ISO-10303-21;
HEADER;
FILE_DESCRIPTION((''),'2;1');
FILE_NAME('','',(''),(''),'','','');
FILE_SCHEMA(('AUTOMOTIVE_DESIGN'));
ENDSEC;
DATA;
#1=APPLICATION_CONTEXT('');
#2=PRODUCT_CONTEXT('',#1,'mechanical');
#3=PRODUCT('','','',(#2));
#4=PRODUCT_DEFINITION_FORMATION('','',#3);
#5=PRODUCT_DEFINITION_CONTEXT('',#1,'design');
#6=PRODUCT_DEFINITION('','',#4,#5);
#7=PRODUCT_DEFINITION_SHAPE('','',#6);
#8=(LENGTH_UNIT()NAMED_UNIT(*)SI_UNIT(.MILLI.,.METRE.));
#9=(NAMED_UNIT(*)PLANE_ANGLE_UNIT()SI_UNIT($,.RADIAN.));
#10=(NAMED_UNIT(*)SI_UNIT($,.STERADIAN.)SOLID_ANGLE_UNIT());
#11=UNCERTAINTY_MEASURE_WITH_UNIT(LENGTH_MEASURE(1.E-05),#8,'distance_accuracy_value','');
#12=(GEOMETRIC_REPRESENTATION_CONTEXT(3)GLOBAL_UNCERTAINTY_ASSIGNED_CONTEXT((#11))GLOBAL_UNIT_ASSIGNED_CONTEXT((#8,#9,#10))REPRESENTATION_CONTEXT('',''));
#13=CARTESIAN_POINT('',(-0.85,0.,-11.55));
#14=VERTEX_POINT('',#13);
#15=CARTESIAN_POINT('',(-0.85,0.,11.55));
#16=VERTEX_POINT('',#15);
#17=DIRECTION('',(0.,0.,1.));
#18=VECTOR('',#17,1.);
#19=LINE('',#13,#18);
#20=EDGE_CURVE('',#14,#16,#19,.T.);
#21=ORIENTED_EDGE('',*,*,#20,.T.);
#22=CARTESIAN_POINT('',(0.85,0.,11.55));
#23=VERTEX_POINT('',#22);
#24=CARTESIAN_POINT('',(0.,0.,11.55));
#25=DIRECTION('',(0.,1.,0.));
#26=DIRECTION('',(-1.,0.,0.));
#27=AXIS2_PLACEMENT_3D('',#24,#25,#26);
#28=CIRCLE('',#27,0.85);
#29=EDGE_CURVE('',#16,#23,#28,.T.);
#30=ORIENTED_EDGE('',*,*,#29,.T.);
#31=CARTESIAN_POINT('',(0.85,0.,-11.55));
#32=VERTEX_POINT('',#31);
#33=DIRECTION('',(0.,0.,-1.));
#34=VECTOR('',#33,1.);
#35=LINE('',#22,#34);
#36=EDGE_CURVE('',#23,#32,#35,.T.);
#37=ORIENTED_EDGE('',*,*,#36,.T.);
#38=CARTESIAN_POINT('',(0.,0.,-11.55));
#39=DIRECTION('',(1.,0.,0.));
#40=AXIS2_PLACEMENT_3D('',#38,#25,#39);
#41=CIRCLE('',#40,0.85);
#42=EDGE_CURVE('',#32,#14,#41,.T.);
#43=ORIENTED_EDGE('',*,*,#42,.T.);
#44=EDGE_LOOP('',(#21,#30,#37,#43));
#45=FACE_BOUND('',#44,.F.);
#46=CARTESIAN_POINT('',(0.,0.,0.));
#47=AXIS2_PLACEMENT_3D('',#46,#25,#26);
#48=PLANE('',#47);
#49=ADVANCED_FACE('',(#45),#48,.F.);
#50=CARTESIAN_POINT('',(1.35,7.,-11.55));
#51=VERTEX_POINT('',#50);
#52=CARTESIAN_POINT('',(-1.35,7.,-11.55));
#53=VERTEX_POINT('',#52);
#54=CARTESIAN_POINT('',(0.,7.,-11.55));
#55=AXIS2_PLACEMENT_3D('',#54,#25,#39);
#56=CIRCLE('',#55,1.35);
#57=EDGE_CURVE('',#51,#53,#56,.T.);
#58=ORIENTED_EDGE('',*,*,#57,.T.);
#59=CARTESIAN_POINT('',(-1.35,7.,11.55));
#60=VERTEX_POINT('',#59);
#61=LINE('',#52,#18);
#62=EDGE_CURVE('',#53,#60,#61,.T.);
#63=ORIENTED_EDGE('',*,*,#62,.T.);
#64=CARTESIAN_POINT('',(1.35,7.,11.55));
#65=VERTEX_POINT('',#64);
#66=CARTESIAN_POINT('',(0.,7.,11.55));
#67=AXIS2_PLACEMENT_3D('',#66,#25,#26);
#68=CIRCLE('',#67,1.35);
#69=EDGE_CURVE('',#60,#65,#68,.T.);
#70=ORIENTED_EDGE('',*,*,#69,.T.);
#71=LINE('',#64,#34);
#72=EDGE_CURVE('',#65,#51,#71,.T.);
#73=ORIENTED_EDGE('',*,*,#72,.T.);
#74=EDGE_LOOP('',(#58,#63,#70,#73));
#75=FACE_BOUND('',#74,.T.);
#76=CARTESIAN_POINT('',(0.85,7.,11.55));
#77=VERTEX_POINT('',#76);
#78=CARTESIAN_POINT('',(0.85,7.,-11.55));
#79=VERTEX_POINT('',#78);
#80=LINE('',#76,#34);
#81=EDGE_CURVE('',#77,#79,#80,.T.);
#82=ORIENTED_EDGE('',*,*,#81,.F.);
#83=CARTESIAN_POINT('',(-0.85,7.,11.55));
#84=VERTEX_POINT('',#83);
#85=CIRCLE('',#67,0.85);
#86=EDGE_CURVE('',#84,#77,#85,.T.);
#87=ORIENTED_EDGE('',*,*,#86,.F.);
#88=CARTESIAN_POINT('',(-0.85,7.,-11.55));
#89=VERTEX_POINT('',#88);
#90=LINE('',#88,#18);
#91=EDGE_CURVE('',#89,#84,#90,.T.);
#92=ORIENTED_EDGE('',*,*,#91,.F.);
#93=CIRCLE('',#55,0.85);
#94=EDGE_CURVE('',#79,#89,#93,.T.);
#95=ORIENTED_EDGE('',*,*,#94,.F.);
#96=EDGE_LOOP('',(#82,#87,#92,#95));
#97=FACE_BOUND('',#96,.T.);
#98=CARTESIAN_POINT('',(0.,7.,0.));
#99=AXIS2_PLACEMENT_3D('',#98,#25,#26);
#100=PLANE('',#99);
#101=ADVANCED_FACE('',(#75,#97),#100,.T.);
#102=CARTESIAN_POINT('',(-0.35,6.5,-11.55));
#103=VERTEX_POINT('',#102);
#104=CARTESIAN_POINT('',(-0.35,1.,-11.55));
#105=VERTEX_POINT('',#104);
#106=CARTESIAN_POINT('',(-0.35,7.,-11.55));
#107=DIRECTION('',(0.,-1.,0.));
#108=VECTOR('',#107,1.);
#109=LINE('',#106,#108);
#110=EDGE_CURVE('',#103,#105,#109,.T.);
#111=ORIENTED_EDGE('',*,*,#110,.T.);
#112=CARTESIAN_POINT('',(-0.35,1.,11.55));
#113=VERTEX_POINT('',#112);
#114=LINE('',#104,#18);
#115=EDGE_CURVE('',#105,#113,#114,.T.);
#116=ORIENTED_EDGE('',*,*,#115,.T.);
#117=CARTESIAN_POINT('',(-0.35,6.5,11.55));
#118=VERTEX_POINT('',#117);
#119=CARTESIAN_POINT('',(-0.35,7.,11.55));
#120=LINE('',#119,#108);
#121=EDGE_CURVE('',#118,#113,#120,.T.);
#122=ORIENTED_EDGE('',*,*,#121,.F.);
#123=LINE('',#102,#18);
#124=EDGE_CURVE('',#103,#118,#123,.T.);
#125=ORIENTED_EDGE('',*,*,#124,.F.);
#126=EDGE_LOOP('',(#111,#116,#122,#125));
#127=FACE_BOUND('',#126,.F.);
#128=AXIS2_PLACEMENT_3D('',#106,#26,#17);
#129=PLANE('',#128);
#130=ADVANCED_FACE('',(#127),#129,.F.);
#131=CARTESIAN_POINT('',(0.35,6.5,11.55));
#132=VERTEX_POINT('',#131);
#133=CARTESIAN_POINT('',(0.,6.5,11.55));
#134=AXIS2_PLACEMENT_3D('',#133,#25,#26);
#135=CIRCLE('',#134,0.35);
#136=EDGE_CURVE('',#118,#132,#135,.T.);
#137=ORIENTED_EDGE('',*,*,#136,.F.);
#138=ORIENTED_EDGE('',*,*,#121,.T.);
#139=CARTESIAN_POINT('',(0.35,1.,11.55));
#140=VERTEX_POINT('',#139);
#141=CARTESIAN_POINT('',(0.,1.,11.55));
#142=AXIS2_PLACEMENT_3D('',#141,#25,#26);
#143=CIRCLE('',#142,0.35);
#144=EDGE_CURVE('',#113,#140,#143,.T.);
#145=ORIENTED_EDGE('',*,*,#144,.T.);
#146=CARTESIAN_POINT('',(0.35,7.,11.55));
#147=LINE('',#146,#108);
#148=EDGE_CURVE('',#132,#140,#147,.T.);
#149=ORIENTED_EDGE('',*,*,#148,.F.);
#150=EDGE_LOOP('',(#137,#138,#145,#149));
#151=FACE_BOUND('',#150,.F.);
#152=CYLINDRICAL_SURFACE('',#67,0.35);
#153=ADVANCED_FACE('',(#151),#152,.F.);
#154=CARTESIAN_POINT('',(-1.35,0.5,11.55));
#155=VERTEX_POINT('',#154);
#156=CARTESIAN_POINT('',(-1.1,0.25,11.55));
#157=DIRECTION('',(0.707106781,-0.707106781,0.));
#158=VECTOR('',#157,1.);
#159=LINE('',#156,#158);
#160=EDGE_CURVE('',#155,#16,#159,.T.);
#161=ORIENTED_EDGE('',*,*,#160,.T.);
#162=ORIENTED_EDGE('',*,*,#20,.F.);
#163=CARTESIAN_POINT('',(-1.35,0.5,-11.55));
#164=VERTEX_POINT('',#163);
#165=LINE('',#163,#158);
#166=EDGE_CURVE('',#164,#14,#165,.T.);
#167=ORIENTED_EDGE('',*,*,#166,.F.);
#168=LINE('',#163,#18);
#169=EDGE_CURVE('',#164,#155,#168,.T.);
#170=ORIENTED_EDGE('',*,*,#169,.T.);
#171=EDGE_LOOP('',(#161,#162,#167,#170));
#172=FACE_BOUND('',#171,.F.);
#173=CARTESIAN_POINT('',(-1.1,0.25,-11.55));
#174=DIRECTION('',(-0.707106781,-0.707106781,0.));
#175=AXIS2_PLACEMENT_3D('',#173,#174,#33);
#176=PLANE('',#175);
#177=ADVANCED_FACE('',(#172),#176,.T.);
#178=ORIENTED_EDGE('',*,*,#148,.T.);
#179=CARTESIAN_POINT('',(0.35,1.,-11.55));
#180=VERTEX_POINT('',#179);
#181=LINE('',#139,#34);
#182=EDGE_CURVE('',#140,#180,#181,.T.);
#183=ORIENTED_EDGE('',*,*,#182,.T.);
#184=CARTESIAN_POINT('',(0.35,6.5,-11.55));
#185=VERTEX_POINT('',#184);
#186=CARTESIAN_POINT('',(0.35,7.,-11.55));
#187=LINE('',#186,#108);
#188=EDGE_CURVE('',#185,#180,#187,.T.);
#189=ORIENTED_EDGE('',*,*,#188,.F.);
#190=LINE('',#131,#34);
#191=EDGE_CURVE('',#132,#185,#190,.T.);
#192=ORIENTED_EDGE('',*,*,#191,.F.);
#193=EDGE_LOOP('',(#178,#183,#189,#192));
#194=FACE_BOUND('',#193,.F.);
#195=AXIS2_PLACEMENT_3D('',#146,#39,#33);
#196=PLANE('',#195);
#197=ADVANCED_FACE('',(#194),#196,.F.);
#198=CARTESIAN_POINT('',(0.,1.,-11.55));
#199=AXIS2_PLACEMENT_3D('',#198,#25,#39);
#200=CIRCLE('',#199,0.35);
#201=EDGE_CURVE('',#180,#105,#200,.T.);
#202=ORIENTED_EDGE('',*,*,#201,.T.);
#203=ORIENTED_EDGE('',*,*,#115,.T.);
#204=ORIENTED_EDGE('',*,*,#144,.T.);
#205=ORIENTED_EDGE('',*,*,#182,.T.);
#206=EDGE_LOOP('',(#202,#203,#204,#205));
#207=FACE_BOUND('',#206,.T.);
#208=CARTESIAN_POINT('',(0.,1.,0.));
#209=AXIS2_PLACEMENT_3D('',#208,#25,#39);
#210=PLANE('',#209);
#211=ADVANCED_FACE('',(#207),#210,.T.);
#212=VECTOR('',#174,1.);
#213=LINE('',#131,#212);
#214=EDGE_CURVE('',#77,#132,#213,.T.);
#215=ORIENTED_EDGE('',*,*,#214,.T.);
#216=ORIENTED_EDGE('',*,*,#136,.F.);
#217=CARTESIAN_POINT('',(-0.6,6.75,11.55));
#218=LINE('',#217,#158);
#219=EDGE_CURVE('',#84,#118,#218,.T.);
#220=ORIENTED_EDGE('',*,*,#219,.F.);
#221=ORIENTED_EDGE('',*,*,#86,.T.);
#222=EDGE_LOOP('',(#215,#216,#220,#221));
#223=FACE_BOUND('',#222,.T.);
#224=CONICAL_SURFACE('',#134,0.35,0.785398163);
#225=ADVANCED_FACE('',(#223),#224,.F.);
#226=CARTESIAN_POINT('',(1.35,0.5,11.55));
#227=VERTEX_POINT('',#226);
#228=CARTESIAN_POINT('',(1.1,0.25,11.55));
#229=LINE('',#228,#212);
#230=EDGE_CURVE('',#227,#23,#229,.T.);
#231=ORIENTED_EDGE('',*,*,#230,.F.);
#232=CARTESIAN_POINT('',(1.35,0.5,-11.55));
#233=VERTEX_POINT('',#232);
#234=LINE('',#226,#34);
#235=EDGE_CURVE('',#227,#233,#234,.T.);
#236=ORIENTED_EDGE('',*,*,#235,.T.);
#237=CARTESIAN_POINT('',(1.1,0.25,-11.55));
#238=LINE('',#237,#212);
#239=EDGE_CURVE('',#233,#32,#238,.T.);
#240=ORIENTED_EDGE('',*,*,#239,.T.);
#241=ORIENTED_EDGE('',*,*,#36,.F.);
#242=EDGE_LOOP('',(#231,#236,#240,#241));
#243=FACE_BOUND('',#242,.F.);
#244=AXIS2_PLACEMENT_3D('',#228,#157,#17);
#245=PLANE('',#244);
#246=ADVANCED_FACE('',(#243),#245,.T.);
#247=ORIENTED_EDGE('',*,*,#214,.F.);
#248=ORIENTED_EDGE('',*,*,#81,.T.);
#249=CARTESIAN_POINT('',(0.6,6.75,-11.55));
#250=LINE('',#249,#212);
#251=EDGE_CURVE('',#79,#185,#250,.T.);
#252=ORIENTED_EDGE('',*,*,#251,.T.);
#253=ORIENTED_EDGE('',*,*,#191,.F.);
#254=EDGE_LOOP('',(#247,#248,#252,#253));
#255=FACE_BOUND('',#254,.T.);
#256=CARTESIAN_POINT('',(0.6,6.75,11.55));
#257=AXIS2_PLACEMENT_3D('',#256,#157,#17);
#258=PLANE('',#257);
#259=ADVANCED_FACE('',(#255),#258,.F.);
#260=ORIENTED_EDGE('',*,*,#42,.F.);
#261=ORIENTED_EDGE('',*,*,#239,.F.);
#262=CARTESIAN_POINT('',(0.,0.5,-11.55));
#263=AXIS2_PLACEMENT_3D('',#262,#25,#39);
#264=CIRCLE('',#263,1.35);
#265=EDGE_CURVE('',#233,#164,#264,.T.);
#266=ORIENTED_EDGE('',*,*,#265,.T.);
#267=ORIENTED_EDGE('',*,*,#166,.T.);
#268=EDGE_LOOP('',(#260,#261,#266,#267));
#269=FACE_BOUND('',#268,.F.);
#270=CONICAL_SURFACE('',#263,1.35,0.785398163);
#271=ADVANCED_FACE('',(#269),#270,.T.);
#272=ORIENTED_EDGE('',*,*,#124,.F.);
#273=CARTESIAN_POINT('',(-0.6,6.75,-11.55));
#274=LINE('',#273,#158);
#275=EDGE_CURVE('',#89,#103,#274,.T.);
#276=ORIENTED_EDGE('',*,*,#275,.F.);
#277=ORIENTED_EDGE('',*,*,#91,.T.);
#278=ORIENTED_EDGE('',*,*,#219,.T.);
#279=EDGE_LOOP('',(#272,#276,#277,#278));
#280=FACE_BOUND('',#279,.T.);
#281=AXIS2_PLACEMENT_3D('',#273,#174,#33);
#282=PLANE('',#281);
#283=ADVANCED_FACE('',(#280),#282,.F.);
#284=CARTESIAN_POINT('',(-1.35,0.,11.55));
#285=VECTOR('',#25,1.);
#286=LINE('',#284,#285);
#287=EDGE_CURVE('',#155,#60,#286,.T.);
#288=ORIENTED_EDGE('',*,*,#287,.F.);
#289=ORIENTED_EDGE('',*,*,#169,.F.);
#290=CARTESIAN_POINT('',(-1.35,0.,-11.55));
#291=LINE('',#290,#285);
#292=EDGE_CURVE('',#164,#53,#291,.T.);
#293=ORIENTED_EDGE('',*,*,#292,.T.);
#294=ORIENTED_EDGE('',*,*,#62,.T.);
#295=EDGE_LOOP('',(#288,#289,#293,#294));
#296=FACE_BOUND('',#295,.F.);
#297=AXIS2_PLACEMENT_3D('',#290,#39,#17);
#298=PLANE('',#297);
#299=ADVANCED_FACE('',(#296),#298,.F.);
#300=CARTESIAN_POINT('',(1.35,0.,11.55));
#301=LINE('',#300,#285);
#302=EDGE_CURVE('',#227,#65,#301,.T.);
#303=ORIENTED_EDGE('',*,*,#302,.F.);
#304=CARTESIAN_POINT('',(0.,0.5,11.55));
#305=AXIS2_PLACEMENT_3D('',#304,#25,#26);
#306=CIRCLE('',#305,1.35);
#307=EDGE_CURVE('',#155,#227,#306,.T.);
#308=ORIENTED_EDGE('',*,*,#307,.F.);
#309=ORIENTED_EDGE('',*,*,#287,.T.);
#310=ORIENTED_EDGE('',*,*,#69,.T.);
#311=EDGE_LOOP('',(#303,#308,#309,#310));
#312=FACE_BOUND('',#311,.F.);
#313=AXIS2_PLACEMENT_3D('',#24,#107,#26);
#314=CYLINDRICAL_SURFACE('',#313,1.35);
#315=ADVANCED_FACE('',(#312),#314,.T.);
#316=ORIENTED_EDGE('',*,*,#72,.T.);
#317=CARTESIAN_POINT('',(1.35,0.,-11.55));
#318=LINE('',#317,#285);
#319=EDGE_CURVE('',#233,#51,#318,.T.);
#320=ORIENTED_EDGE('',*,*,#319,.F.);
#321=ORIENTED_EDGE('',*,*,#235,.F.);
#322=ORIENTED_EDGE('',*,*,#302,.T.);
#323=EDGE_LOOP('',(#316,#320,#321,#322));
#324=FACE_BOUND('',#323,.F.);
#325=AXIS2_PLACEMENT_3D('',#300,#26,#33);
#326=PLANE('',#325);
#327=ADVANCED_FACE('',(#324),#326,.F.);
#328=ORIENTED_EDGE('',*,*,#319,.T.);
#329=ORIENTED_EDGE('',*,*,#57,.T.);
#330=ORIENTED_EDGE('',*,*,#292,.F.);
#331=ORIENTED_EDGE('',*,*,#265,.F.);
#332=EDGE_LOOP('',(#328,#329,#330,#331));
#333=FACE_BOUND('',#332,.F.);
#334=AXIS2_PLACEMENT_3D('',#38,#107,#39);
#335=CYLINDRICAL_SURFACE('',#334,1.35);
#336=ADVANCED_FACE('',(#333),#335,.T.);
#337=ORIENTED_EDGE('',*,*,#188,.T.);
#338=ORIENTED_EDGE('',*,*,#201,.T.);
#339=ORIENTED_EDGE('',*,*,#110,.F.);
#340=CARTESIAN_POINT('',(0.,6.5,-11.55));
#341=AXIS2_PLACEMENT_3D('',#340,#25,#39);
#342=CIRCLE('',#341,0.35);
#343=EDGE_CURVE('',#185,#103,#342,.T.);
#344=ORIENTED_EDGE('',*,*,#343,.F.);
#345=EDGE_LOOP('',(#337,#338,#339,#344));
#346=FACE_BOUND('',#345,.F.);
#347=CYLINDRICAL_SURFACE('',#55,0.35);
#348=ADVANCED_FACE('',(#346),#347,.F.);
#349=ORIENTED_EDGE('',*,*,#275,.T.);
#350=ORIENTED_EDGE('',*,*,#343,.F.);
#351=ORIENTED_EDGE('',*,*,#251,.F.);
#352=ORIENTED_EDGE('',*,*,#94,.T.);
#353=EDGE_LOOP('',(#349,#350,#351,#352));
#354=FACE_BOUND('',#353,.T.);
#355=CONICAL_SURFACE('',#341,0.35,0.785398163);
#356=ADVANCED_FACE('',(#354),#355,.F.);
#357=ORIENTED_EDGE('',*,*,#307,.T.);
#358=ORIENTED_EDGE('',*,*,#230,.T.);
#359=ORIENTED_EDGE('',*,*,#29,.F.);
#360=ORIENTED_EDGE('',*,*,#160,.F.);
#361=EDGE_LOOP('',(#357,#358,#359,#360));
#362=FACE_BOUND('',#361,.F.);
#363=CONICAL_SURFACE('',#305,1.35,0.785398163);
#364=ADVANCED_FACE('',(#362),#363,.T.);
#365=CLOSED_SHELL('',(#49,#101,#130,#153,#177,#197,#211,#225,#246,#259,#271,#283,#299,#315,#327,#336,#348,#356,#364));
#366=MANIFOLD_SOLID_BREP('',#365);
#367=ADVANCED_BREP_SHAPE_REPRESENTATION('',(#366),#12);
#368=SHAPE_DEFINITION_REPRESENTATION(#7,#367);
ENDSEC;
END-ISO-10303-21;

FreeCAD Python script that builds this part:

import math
import FreeCAD as App
import Part
import Sketcher
from FreeCAD import Vector
Q = App.Units.Quantity


def edges_at(feature, points):
    """Names of the edges that pass closest to the given points."""
    edges = feature.Shape.Edges
    near = lambda p: min(range(len(edges)), key=lambda i: edges[i].distToShape(Part.Vertex(*p))[0])
    return sorted({f"Edge{near(p) + 1}" for p in points})

doc = App.newDocument("Part")
params = doc.addObject("Spreadsheet::Sheet", "Params")
for row, (alias, value) in enumerate([
    ("sketch1_radius", "1.35 mm"),
    ("sketch1_height", "23.1 mm"),
    ("pad1_length", "7 mm"),
    ("sketch2_radius", "0.35 mm"),
    ("sketch2_height", "23.1 mm"),
    ("pocket1_length", "6 mm"),
    ("chamfer_size", "0.5 mm"),
    ("chamfer2_size", "0.5 mm"),
], start=1):
    params.set(f"A{row}", alias)
    params.set(f"B{row}", "=" + value)
    params.setAlias(f"B{row}", alias)

body = doc.addObject("PartDesign::Body", "Body")

sketch1 = body.newObject("Sketcher::SketchObject", "Sketch")
sketch1.AttachmentSupport = (doc.getObject("XZ_Plane"), [""])
sketch1.MapMode = "FlatFace"
sketch1.addGeometry([
    Part.ArcOfCircle(Part.Circle(Vector(0, 11.6, 0), Vector(0, 0, 1), 1.4), math.radians(0), math.radians(180)),
    Part.LineSegment(Vector(1.4, 11.6, 0), Vector(1.4, -11.6, 0)),
    Part.ArcOfCircle(Part.Circle(Vector(0, -11.6, 0), Vector(0, 0, 1), 1.4), math.radians(180), math.radians(360)),
    Part.LineSegment(Vector(-1.4, -11.6, 0), Vector(-1.4, 11.6, 0)),
], False)
sketch1.addConstraint([
    Sketcher.Constraint("Tangent", 0, 1, 1, 1),
    Sketcher.Constraint("Tangent", 1, 2, 2, 2),
    Sketcher.Constraint("Tangent", 2, 1, 3, 1),
    Sketcher.Constraint("Tangent", 3, 2, 0, 2),
    Sketcher.Constraint("Vertical", 1),
    Sketcher.Constraint("Vertical", 3),
    Sketcher.Constraint("Symmetric", 0, 3, 2, 3, -1, 1),
    Sketcher.Constraint("Radius", 0, Q("1.35 mm")),
    Sketcher.Constraint("DistanceY", 1, 2, 1, 1, Q("23.1 mm")),
])
sketch1.setExpression("Constraints[7]", "Params.sketch1_radius")
sketch1.setExpression("Constraints[8]", "Params.sketch1_height")
pad1 = body.newObject("PartDesign::Pad", "Pad")
pad1.Profile = sketch1
pad1.setExpression("Length", "Params.pad1_length")
pad1.Reversed = True

sketch2 = body.newObject("Sketcher::SketchObject", "Sketch001")
sketch2.AttachmentSupport = (doc.getObject("XZ_Plane"), [""])
sketch2.MapMode = "FlatFace"
sketch2.AttachmentOffset = App.Placement(Vector(0, 0, -7), App.Rotation())
sketch2.addGeometry([
    Part.ArcOfCircle(Part.Circle(Vector(0, 11.55, 0), Vector(0, 0, 1), 0.35), math.radians(0), math.radians(180)),
    Part.LineSegment(Vector(0.35, 11.55, 0), Vector(0.35, -11.55, 0)),
    Part.ArcOfCircle(Part.Circle(Vector(0, -11.55, 0), Vector(0, 0, 1), 0.35), math.radians(180), math.radians(360)),
    Part.LineSegment(Vector(-0.35, -11.55, 0), Vector(-0.35, 11.55, 0)),
], False)
sketch2.addConstraint([
    Sketcher.Constraint("Tangent", 0, 1, 1, 1),
    Sketcher.Constraint("Tangent", 1, 2, 2, 2),
    Sketcher.Constraint("Tangent", 2, 1, 3, 1),
    Sketcher.Constraint("Tangent", 3, 2, 0, 2),
    Sketcher.Constraint("Vertical", 1),
    Sketcher.Constraint("Vertical", 3),
    Sketcher.Constraint("Symmetric", 0, 3, 2, 3, -1, 1),
    Sketcher.Constraint("Radius", 0, Q("0.35 mm")),
    Sketcher.Constraint("DistanceY", 1, 2, 1, 1, Q("23.1 mm")),
])
sketch2.setExpression("Constraints[7]", "Params.sketch2_radius")
sketch2.setExpression("Constraints[8]", "Params.sketch2_height")
pocket1 = body.newObject("PartDesign::Pocket", "Pocket")
pocket1.Profile = sketch2
pocket1.setExpression("Length", "Params.pocket1_length")
pocket1.Reversed = True
doc.recompute()

chamfer = body.newObject("PartDesign::Chamfer", "Chamfer")
chamfer.Base = (pocket1, edges_at(pocket1, [
    (1.35, 0, 0),
    (0, 0, -12.9),
    (-1.35, 0, 0),
    (0, 0, 12.9),
]))
chamfer.setExpression("Size", "Params.chamfer_size")
doc.recompute()

chamfer2 = body.newObject("PartDesign::Chamfer", "Chamfer001")
chamfer2.Base = (chamfer, edges_at(chamfer, [
    (-0.35, 7, 0),
    (0, 7, -11.9),
    (0.35, 7, 0),
    (0, 7, 11.9),
]))
chamfer2.setExpression("Size", "Params.chamfer2_size")

doc.recompute()
